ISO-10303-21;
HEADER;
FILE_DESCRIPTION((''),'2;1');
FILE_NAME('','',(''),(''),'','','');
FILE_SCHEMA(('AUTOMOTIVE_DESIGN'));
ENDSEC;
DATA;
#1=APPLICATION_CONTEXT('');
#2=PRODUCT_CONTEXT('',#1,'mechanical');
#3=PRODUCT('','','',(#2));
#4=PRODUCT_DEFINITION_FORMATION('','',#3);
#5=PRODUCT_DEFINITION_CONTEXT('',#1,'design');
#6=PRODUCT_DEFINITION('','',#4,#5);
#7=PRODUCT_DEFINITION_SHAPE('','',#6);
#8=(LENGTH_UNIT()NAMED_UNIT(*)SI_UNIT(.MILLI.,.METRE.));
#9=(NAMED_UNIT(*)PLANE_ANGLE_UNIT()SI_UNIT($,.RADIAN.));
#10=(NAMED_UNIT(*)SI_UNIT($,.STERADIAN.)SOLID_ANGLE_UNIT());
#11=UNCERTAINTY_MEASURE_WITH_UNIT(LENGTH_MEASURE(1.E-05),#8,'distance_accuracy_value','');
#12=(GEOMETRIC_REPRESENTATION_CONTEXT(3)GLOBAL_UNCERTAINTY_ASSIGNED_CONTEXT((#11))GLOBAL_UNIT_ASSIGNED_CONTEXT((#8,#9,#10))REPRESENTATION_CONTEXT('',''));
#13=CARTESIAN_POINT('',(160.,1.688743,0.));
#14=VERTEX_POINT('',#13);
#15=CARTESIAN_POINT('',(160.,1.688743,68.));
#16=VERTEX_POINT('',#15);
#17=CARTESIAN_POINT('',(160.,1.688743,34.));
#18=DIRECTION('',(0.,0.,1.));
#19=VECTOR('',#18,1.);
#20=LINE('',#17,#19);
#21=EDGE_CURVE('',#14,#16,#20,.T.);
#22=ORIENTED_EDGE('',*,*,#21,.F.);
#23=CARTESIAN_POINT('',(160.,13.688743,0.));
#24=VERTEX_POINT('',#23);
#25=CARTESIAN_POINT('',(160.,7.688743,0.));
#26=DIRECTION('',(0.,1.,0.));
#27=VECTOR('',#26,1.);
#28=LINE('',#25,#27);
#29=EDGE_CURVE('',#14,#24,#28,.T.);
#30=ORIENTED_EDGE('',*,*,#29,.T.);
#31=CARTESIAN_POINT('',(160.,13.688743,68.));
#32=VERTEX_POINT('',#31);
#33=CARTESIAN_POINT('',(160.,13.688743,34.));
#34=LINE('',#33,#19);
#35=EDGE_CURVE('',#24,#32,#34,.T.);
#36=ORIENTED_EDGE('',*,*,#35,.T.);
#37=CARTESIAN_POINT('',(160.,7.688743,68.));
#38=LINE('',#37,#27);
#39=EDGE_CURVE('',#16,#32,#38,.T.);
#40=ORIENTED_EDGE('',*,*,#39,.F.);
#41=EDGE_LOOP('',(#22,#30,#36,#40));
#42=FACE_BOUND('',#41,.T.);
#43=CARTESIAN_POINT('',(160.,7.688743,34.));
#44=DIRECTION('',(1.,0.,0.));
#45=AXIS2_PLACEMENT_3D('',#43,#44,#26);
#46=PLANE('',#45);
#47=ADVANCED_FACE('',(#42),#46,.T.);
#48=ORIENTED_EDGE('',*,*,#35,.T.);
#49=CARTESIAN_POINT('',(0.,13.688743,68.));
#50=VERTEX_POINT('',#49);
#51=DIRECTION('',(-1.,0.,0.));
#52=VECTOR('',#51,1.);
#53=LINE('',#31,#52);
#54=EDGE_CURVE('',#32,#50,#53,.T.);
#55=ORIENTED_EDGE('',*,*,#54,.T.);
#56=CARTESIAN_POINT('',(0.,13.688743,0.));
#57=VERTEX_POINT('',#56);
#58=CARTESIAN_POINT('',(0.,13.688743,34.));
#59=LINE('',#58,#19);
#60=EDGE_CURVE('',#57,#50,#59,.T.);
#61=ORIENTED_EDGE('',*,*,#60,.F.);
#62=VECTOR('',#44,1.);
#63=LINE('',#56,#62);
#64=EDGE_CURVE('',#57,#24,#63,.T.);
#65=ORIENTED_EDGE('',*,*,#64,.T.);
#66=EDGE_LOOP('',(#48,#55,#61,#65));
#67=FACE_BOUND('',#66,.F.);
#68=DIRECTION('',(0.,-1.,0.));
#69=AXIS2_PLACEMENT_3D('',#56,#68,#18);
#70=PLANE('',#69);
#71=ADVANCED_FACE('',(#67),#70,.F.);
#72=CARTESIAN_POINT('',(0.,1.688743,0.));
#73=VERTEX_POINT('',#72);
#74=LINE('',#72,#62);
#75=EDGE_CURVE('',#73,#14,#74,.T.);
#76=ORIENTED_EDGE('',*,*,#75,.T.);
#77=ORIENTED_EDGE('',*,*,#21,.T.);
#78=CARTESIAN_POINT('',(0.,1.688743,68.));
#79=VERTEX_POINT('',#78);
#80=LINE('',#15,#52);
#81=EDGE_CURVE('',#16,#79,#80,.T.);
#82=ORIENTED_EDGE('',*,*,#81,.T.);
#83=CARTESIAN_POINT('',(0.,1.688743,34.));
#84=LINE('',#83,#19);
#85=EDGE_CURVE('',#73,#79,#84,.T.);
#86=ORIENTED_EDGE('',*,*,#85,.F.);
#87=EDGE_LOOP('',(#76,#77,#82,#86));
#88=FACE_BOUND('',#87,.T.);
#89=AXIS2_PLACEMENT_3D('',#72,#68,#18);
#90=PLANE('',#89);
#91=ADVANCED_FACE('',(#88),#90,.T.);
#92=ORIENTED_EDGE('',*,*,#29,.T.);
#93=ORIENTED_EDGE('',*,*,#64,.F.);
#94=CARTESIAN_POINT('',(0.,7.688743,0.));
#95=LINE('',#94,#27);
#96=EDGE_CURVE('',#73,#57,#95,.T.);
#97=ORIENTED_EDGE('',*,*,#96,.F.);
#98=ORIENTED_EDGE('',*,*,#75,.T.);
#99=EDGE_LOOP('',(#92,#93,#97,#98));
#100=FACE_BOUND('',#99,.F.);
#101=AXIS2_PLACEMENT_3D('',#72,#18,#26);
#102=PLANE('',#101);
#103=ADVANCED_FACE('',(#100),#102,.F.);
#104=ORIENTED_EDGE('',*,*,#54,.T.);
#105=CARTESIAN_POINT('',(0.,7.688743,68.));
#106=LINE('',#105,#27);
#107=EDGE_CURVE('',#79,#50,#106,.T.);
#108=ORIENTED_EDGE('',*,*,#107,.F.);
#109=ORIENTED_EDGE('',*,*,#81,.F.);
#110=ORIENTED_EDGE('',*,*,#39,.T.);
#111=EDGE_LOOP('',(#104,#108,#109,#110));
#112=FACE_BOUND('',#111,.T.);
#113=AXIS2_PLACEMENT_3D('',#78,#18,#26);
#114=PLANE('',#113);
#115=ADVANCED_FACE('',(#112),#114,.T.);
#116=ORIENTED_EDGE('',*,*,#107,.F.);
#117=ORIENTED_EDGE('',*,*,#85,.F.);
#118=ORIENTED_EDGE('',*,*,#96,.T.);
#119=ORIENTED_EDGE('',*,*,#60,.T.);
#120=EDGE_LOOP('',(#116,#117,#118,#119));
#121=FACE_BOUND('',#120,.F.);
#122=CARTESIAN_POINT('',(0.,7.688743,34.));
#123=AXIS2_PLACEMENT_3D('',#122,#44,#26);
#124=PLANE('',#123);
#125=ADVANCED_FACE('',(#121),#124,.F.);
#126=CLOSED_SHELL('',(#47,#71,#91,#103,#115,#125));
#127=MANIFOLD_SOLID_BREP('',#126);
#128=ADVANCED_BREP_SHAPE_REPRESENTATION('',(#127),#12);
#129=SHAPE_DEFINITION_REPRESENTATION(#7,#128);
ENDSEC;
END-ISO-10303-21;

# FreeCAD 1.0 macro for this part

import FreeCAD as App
import Part
import Sketcher


def add_polygon(sketch, points):
    """Adds a closed chain of lines whose ends are joined by coincident constraints."""
    first, n = sketch.GeometryCount, len(points)
    for a, b in zip(points, points[1:] + points[:1]):
        sketch.addGeometry(Part.LineSegment(App.Vector(*a, 0), App.Vector(*b, 0)), False)
    for i in range(n):
        sketch.addConstraint(Sketcher.Constraint("Coincident", first + i, 2, first + (i + 1) % n, 1))

doc = App.newDocument("Part")
body = doc.addObject("PartDesign::Body", "Body")

sketch1 = doc.addObject("Sketcher::SketchObject", "Sketch")
body.addObject(sketch1)
sketch1.AttachmentSupport = (doc.YZ_Plane, [""])
sketch1.MapMode = "FlatFace"
add_polygon(sketch1, [(2, 68), (2, 0), (14, 0), (14, 68)])
sketch1.addConstraint(Sketcher.Constraint("Vertical", 0))
sketch1.addConstraint(Sketcher.Constraint("Horizontal", 1))
sketch1.addConstraint(Sketcher.Constraint("Vertical", 2))
sketch1.addConstraint(Sketcher.Constraint("Horizontal", 3))
sketch1.addConstraint(Sketcher.Constraint("PointOnObject", 0, 2, -1))
sketch1.addConstraint(Sketcher.Constraint("DistanceX", 1, 1, 1, 2, 12.0))
sketch1.addConstraint(Sketcher.Constraint("DistanceY", 0, 2, 0, 1, 68.0))
sketch1.addConstraint(Sketcher.Constraint("DistanceX", -1, 1, 0, 2, 1.688743))
pad1 = doc.addObject("PartDesign::Pad", "Pad")
body.addObject(pad1)
pad1.Profile = sketch1
pad1.Length = 16

sketch2 = doc.addObject("Sketcher::SketchObject", "Sketch001")
body.addObject(sketch2)
sketch2.AttachmentSupport = (doc.YZ_Plane, [""])
sketch2.MapMode = "FlatFace"
add_polygon(sketch2, [(2, 68), (2, 0), (14, 0), (14, 68)])
sketch2.addConstraint(Sketcher.Constraint("Vertical", 0))
sketch2.addConstraint(Sketcher.Constraint("Horizontal", 1))
sketch2.addConstraint(Sketcher.Constraint("Vertical", 2))
sketch2.addConstraint(Sketcher.Constraint("Horizontal", 3))
sketch2.addConstraint(Sketcher.Constraint("PointOnObject", 0, 2, -1))
sketch2.addConstraint(Sketcher.Constraint("DistanceX", 1, 1, 1, 2, 12.0))
sketch2.addConstraint(Sketcher.Constraint("DistanceY", 0, 2, 0, 1, 68.0))
sketch2.addConstraint(Sketcher.Constraint("DistanceX", -1, 1, 0, 2, 1.688743))
pad2 = doc.addObject("PartDesign::Pad", "Pad001")
body.addObject(pad2)
pad2.Profile = sketch2
pad2.Length = 160

doc.recompute()
